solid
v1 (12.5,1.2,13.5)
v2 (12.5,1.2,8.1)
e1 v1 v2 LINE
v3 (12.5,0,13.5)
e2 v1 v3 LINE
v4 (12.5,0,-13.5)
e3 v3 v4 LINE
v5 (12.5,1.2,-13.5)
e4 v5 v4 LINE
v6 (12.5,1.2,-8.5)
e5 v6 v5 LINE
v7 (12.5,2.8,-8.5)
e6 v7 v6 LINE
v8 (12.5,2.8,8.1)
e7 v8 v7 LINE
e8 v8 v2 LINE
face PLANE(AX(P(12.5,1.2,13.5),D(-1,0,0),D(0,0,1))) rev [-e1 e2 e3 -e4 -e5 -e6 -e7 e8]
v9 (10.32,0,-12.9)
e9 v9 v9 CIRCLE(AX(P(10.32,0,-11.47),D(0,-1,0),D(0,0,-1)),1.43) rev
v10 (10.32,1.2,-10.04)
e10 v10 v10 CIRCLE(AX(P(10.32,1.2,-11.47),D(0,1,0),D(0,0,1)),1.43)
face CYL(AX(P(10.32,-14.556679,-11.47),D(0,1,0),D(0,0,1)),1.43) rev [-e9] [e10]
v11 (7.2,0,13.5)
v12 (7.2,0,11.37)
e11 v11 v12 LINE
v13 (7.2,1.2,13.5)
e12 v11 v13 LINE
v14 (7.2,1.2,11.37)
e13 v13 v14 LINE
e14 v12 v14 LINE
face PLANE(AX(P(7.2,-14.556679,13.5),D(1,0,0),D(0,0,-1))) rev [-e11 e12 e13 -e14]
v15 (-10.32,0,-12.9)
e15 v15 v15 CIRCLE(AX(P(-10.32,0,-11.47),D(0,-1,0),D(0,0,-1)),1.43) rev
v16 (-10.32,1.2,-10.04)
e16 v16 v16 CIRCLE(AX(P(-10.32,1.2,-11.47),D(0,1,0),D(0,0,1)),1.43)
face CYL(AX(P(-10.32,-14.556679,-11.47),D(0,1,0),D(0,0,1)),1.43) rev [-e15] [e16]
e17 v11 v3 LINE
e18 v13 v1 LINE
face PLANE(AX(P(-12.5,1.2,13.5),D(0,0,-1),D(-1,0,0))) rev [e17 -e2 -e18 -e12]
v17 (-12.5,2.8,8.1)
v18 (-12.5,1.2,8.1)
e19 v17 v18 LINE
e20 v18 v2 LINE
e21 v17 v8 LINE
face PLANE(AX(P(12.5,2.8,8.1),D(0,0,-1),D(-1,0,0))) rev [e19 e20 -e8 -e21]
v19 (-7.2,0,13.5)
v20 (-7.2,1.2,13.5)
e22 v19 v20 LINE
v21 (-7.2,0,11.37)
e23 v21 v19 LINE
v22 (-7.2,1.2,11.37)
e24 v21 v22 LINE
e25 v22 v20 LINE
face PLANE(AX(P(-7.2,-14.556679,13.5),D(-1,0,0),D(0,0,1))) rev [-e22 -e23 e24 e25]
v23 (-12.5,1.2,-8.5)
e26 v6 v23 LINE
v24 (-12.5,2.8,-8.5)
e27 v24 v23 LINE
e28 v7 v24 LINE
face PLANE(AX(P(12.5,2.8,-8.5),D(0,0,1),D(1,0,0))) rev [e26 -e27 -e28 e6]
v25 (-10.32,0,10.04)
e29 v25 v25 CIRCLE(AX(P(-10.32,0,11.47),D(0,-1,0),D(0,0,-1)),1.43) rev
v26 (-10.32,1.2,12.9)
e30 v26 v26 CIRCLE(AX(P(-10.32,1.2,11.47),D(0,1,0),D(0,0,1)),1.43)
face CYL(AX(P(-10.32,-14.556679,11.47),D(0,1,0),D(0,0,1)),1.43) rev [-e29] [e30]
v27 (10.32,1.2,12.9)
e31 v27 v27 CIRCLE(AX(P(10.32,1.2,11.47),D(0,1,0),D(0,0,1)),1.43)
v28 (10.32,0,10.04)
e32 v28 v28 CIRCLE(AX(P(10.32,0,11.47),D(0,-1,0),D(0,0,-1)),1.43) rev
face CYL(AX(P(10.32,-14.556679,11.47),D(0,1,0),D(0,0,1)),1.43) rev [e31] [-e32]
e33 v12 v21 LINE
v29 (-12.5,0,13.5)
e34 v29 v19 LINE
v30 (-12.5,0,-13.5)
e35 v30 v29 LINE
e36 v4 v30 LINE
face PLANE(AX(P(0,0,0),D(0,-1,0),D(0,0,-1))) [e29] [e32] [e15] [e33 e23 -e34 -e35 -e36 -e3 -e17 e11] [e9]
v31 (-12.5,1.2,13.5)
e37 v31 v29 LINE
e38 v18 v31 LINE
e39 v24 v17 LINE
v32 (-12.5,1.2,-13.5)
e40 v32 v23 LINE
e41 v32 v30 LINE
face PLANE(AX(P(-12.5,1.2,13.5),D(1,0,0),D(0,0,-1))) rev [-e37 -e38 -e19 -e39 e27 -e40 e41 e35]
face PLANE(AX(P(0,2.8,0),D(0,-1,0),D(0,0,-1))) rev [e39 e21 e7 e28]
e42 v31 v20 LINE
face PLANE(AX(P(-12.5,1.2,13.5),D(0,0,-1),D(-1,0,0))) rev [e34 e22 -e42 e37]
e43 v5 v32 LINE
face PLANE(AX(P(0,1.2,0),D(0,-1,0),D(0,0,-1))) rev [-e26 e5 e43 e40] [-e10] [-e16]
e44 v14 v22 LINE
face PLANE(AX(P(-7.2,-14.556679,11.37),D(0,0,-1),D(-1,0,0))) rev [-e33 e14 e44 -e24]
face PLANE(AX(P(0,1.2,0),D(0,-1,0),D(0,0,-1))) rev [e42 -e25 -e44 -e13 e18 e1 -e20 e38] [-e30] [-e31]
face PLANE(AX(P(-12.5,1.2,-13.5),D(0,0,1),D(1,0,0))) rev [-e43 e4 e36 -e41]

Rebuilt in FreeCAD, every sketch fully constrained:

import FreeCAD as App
import Part
import Sketcher
from FreeCAD import Vector

doc = App.newDocument("Part")
params = doc.addObject("Spreadsheet::Sheet", "Params")
for row, (alias, value) in enumerate([
    ("sketch1_width", "25 mm"),
    ("sketch1_height", "27 mm"),
    ("pad1_length", "1.2 mm"),
    ("sketch2_width", "25 mm"),
    ("sketch2_height", "16.6 mm"),
    ("pad2_length", "1.6 mm"),
    ("sketch3_diameter", "2.86 mm"),
    ("sketch3_width", "14.4 mm"),
    ("sketch3_height", "2.13 mm"),
    ("pocket1_length", "1.2 mm"),
], start=1):
    params.set(f"A{row}", alias)
    params.set(f"B{row}", "=" + value)
    params.setAlias(f"B{row}", alias)

body = doc.addObject("PartDesign::Body", "Body")

# Sketch on XZ plane
sketch1 = body.newObject("Sketcher::SketchObject", "Sketch")
sketch1.AttachmentSupport = (doc.getObject("XZ_Plane"), [""])
sketch1.MapMode = "FlatFace"
sketch1.addGeometry(Part.LineSegment(Vector(-12, -14, 0), Vector(-12, 14, 0)), False)
sketch1.addGeometry(Part.LineSegment(Vector(-12, 14, 0), Vector(12, 14, 0)), False)
sketch1.addGeometry(Part.LineSegment(Vector(12, 14, 0), Vector(12, -14, 0)), False)
sketch1.addGeometry(Part.LineSegment(Vector(12, -14, 0), Vector(-12, -14, 0)), False)
sketch1.addConstraint(Sketcher.Constraint("Coincident", 0, 2, 1, 1))
sketch1.addConstraint(Sketcher.Constraint("Coincident", 1, 2, 2, 1))
sketch1.addConstraint(Sketcher.Constraint("Coincident", 2, 2, 3, 1))
sketch1.addConstraint(Sketcher.Constraint("Coincident", 3, 2, 0, 1))
sketch1.addConstraint(Sketcher.Constraint("Vertical", 0))
sketch1.addConstraint(Sketcher.Constraint("Horizontal", 1))
sketch1.addConstraint(Sketcher.Constraint("Vertical", 2))
sketch1.addConstraint(Sketcher.Constraint("Horizontal", 3))
sketch1.addConstraint(Sketcher.Constraint("Symmetric", 0, 2, 2, 2, -1, 1))
sketch1.addConstraint(Sketcher.Constraint("DistanceX", 1, 1, 1, 2, 25.0))
sketch1.addConstraint(Sketcher.Constraint("DistanceY", 0, 1, 0, 2, 27.0))
sketch1.setExpression("Constraints[9]", "Params.sketch1_width")
sketch1.setExpression("Constraints[10]", "Params.sketch1_height")
pad1 = body.newObject("PartDesign::Pad", "Pad")
pad1.Profile = sketch1
pad1.setExpression("Length", "Params.pad1_length")
pad1.Reversed = True

# Sketch on XZ plane
sketch2 = body.newObject("Sketcher::SketchObject", "Sketch001")
sketch2.AttachmentSupport = (doc.getObject("XZ_Plane"), [""])
sketch2.MapMode = "FlatFace"
sketch2.AttachmentOffset = App.Placement(Vector(0, 0, -1.2), App.Rotation())
sketch2.addGeometry(Part.LineSegment(Vector(-12, -8, 0), Vector(-12, 8, 0)), False)
sketch2.addGeometry(Part.LineSegment(Vector(-12, 8, 0), Vector(12, 8, 0)), False)
sketch2.addGeometry(Part.LineSegment(Vector(12, 8, 0), Vector(12, -8, 0)), False)
sketch2.addGeometry(Part.LineSegment(Vector(12, -8, 0), Vector(-12, -8, 0)), False)
sketch2.addConstraint(Sketcher.Constraint("Coincident", 0, 2, 1, 1))
sketch2.addConstraint(Sketcher.Constraint("Coincident", 1, 2, 2, 1))
sketch2.addConstraint(Sketcher.Constraint("Coincident", 2, 2, 3, 1))
sketch2.addConstraint(Sketcher.Constraint("Coincident", 3, 2, 0, 1))
sketch2.addConstraint(Sketcher.Constraint("Vertical", 0))
sketch2.addConstraint(Sketcher.Constraint("Horizontal", 1))
sketch2.addConstraint(Sketcher.Constraint("Vertical", 2))
sketch2.addConstraint(Sketcher.Constraint("Horizontal", 3))
sketch2.addConstraint(Sketcher.Constraint("DistanceX", 1, 1, 1, 2, 25.0))
sketch2.addConstraint(Sketcher.Constraint("DistanceY", 0, 1, 0, 2, 16.6))
sketch2.addConstraint(Sketcher.Constraint("DistanceX", 0, 2, -1, 1, 12.5))
sketch2.addConstraint(Sketcher.Constraint("DistanceY", -1, 1, 0, 2, 8.1))
sketch2.setExpression("Constraints[8]", "Params.sketch2_width")
sketch2.setExpression("Constraints[9]", "Params.sketch2_height")
pad2 = body.newObject("PartDesign::Pad", "Pad001")
pad2.Profile = sketch2
pad2.setExpression("Length", "Params.pad2_length")
pad2.Reversed = True

# Sketch on XZ plane
sketch3 = body.newObject("Sketcher::SketchObject", "Sketch002")
sketch3.AttachmentSupport = (doc.getObject("XZ_Plane"), [""])
sketch3.MapMode = "FlatFace"
sketch3.AttachmentOffset = App.Placement(Vector(0, 0, -1.2), App.Rotation())
sketch3.addGeometry(Part.Circle(Vector(10.3, -11.5, 0), Vector(0, 0, 1), 1.4), False)
sketch3.addGeometry(Part.Circle(Vector(-10.3, -11.5, 0), Vector(0, 0, 1), 1.4), False)
sketch3.addGeometry(Part.Circle(Vector(-10.3, 11.5, 0), Vector(0, 0, 1), 1.4), False)
sketch3.addGeometry(Part.Circle(Vector(10.3, 11.5, 0), Vector(0, 0, 1), 1.4), False)
sketch3.addGeometry(Part.LineSegment(Vector(-7.2, 11.4, 0), Vector(-7.2, 13.5, 0)), False)
sketch3.addGeometry(Part.LineSegment(Vector(-7.2, 13.5, 0), Vector(7.2, 13.5, 0)), False)
sketch3.addGeometry(Part.LineSegment(Vector(7.2, 13.5, 0), Vector(7.2, 11.4, 0)), False)
sketch3.addGeometry(Part.LineSegment(Vector(7.2, 11.4, 0), Vector(-7.2, 11.4, 0)), False)
sketch3.addConstraint(Sketcher.Constraint("Coincident", 4, 2, 5, 1))
sketch3.addConstraint(Sketcher.Constraint("Coincident", 5, 2, 6, 1))
sketch3.addConstraint(Sketcher.Constraint("Coincident", 6, 2, 7, 1))
sketch3.addConstraint(Sketcher.Constraint("Coincident", 7, 2, 4, 1))
sketch3.addConstraint(Sketcher.Constraint("Vertical", 4))
sketch3.addConstraint(Sketcher.Constraint("Horizontal", 5))
sketch3.addConstraint(Sketcher.Constraint("Vertical", 6))
sketch3.addConstraint(Sketcher.Constraint("Horizontal", 7))
sketch3.addConstraint(Sketcher.Constraint("Equal", 0, 1))
sketch3.addConstraint(Sketcher.Constraint("Equal", 1, 2))
sketch3.addConstraint(Sketcher.Constraint("Equal", 2, 3))
sketch3.addConstraint(Sketcher.Constraint("Symmetric", 0, 3, 2, 3, -1, 1))
sketch3.addConstraint(Sketcher.Constraint("Symmetric", 1, 3, 3, 3, -1, 1))
sketch3.addConstraint(Sketcher.Constraint("Symmetric", 0, 3, 1, 3, -2))
sketch3.addConstraint(Sketcher.Constraint("Diameter", 0, 2.86))
sketch3.addConstraint(Sketcher.Constraint("DistanceX", 5, 1, 5, 2, 14.4))
sketch3.addConstraint(Sketcher.Constraint("DistanceY", 4, 1, 4, 2, 2.13))
sketch3.addConstraint(Sketcher.Constraint("DistanceX", 4, 2, -1, 1, 7.2))
sketch3.addConstraint(Sketcher.Constraint("DistanceY", -1, 1, 4, 2, 13.5))
sketch3.addConstraint(Sketcher.Constraint("DistanceY", 6, 2, 3, 3, 0.1))
sketch3.addConstraint(Sketcher.Constraint("DistanceX", -1, 1, 0, 3, 10.32))
sketch3.setExpression("Constraints[14]", "Params.sketch3_diameter")
sketch3.setExpression("Constraints[15]", "Params.sketch3_width")
sketch3.setExpression("Constraints[16]", "Params.sketch3_height")
pocket1 = body.newObject("PartDesign::Pocket", "Pocket")
pocket1.Profile = sketch3
pocket1.setExpression("Length", "Params.pocket1_length")
pocket1.Reversed = True

doc.recompute()
